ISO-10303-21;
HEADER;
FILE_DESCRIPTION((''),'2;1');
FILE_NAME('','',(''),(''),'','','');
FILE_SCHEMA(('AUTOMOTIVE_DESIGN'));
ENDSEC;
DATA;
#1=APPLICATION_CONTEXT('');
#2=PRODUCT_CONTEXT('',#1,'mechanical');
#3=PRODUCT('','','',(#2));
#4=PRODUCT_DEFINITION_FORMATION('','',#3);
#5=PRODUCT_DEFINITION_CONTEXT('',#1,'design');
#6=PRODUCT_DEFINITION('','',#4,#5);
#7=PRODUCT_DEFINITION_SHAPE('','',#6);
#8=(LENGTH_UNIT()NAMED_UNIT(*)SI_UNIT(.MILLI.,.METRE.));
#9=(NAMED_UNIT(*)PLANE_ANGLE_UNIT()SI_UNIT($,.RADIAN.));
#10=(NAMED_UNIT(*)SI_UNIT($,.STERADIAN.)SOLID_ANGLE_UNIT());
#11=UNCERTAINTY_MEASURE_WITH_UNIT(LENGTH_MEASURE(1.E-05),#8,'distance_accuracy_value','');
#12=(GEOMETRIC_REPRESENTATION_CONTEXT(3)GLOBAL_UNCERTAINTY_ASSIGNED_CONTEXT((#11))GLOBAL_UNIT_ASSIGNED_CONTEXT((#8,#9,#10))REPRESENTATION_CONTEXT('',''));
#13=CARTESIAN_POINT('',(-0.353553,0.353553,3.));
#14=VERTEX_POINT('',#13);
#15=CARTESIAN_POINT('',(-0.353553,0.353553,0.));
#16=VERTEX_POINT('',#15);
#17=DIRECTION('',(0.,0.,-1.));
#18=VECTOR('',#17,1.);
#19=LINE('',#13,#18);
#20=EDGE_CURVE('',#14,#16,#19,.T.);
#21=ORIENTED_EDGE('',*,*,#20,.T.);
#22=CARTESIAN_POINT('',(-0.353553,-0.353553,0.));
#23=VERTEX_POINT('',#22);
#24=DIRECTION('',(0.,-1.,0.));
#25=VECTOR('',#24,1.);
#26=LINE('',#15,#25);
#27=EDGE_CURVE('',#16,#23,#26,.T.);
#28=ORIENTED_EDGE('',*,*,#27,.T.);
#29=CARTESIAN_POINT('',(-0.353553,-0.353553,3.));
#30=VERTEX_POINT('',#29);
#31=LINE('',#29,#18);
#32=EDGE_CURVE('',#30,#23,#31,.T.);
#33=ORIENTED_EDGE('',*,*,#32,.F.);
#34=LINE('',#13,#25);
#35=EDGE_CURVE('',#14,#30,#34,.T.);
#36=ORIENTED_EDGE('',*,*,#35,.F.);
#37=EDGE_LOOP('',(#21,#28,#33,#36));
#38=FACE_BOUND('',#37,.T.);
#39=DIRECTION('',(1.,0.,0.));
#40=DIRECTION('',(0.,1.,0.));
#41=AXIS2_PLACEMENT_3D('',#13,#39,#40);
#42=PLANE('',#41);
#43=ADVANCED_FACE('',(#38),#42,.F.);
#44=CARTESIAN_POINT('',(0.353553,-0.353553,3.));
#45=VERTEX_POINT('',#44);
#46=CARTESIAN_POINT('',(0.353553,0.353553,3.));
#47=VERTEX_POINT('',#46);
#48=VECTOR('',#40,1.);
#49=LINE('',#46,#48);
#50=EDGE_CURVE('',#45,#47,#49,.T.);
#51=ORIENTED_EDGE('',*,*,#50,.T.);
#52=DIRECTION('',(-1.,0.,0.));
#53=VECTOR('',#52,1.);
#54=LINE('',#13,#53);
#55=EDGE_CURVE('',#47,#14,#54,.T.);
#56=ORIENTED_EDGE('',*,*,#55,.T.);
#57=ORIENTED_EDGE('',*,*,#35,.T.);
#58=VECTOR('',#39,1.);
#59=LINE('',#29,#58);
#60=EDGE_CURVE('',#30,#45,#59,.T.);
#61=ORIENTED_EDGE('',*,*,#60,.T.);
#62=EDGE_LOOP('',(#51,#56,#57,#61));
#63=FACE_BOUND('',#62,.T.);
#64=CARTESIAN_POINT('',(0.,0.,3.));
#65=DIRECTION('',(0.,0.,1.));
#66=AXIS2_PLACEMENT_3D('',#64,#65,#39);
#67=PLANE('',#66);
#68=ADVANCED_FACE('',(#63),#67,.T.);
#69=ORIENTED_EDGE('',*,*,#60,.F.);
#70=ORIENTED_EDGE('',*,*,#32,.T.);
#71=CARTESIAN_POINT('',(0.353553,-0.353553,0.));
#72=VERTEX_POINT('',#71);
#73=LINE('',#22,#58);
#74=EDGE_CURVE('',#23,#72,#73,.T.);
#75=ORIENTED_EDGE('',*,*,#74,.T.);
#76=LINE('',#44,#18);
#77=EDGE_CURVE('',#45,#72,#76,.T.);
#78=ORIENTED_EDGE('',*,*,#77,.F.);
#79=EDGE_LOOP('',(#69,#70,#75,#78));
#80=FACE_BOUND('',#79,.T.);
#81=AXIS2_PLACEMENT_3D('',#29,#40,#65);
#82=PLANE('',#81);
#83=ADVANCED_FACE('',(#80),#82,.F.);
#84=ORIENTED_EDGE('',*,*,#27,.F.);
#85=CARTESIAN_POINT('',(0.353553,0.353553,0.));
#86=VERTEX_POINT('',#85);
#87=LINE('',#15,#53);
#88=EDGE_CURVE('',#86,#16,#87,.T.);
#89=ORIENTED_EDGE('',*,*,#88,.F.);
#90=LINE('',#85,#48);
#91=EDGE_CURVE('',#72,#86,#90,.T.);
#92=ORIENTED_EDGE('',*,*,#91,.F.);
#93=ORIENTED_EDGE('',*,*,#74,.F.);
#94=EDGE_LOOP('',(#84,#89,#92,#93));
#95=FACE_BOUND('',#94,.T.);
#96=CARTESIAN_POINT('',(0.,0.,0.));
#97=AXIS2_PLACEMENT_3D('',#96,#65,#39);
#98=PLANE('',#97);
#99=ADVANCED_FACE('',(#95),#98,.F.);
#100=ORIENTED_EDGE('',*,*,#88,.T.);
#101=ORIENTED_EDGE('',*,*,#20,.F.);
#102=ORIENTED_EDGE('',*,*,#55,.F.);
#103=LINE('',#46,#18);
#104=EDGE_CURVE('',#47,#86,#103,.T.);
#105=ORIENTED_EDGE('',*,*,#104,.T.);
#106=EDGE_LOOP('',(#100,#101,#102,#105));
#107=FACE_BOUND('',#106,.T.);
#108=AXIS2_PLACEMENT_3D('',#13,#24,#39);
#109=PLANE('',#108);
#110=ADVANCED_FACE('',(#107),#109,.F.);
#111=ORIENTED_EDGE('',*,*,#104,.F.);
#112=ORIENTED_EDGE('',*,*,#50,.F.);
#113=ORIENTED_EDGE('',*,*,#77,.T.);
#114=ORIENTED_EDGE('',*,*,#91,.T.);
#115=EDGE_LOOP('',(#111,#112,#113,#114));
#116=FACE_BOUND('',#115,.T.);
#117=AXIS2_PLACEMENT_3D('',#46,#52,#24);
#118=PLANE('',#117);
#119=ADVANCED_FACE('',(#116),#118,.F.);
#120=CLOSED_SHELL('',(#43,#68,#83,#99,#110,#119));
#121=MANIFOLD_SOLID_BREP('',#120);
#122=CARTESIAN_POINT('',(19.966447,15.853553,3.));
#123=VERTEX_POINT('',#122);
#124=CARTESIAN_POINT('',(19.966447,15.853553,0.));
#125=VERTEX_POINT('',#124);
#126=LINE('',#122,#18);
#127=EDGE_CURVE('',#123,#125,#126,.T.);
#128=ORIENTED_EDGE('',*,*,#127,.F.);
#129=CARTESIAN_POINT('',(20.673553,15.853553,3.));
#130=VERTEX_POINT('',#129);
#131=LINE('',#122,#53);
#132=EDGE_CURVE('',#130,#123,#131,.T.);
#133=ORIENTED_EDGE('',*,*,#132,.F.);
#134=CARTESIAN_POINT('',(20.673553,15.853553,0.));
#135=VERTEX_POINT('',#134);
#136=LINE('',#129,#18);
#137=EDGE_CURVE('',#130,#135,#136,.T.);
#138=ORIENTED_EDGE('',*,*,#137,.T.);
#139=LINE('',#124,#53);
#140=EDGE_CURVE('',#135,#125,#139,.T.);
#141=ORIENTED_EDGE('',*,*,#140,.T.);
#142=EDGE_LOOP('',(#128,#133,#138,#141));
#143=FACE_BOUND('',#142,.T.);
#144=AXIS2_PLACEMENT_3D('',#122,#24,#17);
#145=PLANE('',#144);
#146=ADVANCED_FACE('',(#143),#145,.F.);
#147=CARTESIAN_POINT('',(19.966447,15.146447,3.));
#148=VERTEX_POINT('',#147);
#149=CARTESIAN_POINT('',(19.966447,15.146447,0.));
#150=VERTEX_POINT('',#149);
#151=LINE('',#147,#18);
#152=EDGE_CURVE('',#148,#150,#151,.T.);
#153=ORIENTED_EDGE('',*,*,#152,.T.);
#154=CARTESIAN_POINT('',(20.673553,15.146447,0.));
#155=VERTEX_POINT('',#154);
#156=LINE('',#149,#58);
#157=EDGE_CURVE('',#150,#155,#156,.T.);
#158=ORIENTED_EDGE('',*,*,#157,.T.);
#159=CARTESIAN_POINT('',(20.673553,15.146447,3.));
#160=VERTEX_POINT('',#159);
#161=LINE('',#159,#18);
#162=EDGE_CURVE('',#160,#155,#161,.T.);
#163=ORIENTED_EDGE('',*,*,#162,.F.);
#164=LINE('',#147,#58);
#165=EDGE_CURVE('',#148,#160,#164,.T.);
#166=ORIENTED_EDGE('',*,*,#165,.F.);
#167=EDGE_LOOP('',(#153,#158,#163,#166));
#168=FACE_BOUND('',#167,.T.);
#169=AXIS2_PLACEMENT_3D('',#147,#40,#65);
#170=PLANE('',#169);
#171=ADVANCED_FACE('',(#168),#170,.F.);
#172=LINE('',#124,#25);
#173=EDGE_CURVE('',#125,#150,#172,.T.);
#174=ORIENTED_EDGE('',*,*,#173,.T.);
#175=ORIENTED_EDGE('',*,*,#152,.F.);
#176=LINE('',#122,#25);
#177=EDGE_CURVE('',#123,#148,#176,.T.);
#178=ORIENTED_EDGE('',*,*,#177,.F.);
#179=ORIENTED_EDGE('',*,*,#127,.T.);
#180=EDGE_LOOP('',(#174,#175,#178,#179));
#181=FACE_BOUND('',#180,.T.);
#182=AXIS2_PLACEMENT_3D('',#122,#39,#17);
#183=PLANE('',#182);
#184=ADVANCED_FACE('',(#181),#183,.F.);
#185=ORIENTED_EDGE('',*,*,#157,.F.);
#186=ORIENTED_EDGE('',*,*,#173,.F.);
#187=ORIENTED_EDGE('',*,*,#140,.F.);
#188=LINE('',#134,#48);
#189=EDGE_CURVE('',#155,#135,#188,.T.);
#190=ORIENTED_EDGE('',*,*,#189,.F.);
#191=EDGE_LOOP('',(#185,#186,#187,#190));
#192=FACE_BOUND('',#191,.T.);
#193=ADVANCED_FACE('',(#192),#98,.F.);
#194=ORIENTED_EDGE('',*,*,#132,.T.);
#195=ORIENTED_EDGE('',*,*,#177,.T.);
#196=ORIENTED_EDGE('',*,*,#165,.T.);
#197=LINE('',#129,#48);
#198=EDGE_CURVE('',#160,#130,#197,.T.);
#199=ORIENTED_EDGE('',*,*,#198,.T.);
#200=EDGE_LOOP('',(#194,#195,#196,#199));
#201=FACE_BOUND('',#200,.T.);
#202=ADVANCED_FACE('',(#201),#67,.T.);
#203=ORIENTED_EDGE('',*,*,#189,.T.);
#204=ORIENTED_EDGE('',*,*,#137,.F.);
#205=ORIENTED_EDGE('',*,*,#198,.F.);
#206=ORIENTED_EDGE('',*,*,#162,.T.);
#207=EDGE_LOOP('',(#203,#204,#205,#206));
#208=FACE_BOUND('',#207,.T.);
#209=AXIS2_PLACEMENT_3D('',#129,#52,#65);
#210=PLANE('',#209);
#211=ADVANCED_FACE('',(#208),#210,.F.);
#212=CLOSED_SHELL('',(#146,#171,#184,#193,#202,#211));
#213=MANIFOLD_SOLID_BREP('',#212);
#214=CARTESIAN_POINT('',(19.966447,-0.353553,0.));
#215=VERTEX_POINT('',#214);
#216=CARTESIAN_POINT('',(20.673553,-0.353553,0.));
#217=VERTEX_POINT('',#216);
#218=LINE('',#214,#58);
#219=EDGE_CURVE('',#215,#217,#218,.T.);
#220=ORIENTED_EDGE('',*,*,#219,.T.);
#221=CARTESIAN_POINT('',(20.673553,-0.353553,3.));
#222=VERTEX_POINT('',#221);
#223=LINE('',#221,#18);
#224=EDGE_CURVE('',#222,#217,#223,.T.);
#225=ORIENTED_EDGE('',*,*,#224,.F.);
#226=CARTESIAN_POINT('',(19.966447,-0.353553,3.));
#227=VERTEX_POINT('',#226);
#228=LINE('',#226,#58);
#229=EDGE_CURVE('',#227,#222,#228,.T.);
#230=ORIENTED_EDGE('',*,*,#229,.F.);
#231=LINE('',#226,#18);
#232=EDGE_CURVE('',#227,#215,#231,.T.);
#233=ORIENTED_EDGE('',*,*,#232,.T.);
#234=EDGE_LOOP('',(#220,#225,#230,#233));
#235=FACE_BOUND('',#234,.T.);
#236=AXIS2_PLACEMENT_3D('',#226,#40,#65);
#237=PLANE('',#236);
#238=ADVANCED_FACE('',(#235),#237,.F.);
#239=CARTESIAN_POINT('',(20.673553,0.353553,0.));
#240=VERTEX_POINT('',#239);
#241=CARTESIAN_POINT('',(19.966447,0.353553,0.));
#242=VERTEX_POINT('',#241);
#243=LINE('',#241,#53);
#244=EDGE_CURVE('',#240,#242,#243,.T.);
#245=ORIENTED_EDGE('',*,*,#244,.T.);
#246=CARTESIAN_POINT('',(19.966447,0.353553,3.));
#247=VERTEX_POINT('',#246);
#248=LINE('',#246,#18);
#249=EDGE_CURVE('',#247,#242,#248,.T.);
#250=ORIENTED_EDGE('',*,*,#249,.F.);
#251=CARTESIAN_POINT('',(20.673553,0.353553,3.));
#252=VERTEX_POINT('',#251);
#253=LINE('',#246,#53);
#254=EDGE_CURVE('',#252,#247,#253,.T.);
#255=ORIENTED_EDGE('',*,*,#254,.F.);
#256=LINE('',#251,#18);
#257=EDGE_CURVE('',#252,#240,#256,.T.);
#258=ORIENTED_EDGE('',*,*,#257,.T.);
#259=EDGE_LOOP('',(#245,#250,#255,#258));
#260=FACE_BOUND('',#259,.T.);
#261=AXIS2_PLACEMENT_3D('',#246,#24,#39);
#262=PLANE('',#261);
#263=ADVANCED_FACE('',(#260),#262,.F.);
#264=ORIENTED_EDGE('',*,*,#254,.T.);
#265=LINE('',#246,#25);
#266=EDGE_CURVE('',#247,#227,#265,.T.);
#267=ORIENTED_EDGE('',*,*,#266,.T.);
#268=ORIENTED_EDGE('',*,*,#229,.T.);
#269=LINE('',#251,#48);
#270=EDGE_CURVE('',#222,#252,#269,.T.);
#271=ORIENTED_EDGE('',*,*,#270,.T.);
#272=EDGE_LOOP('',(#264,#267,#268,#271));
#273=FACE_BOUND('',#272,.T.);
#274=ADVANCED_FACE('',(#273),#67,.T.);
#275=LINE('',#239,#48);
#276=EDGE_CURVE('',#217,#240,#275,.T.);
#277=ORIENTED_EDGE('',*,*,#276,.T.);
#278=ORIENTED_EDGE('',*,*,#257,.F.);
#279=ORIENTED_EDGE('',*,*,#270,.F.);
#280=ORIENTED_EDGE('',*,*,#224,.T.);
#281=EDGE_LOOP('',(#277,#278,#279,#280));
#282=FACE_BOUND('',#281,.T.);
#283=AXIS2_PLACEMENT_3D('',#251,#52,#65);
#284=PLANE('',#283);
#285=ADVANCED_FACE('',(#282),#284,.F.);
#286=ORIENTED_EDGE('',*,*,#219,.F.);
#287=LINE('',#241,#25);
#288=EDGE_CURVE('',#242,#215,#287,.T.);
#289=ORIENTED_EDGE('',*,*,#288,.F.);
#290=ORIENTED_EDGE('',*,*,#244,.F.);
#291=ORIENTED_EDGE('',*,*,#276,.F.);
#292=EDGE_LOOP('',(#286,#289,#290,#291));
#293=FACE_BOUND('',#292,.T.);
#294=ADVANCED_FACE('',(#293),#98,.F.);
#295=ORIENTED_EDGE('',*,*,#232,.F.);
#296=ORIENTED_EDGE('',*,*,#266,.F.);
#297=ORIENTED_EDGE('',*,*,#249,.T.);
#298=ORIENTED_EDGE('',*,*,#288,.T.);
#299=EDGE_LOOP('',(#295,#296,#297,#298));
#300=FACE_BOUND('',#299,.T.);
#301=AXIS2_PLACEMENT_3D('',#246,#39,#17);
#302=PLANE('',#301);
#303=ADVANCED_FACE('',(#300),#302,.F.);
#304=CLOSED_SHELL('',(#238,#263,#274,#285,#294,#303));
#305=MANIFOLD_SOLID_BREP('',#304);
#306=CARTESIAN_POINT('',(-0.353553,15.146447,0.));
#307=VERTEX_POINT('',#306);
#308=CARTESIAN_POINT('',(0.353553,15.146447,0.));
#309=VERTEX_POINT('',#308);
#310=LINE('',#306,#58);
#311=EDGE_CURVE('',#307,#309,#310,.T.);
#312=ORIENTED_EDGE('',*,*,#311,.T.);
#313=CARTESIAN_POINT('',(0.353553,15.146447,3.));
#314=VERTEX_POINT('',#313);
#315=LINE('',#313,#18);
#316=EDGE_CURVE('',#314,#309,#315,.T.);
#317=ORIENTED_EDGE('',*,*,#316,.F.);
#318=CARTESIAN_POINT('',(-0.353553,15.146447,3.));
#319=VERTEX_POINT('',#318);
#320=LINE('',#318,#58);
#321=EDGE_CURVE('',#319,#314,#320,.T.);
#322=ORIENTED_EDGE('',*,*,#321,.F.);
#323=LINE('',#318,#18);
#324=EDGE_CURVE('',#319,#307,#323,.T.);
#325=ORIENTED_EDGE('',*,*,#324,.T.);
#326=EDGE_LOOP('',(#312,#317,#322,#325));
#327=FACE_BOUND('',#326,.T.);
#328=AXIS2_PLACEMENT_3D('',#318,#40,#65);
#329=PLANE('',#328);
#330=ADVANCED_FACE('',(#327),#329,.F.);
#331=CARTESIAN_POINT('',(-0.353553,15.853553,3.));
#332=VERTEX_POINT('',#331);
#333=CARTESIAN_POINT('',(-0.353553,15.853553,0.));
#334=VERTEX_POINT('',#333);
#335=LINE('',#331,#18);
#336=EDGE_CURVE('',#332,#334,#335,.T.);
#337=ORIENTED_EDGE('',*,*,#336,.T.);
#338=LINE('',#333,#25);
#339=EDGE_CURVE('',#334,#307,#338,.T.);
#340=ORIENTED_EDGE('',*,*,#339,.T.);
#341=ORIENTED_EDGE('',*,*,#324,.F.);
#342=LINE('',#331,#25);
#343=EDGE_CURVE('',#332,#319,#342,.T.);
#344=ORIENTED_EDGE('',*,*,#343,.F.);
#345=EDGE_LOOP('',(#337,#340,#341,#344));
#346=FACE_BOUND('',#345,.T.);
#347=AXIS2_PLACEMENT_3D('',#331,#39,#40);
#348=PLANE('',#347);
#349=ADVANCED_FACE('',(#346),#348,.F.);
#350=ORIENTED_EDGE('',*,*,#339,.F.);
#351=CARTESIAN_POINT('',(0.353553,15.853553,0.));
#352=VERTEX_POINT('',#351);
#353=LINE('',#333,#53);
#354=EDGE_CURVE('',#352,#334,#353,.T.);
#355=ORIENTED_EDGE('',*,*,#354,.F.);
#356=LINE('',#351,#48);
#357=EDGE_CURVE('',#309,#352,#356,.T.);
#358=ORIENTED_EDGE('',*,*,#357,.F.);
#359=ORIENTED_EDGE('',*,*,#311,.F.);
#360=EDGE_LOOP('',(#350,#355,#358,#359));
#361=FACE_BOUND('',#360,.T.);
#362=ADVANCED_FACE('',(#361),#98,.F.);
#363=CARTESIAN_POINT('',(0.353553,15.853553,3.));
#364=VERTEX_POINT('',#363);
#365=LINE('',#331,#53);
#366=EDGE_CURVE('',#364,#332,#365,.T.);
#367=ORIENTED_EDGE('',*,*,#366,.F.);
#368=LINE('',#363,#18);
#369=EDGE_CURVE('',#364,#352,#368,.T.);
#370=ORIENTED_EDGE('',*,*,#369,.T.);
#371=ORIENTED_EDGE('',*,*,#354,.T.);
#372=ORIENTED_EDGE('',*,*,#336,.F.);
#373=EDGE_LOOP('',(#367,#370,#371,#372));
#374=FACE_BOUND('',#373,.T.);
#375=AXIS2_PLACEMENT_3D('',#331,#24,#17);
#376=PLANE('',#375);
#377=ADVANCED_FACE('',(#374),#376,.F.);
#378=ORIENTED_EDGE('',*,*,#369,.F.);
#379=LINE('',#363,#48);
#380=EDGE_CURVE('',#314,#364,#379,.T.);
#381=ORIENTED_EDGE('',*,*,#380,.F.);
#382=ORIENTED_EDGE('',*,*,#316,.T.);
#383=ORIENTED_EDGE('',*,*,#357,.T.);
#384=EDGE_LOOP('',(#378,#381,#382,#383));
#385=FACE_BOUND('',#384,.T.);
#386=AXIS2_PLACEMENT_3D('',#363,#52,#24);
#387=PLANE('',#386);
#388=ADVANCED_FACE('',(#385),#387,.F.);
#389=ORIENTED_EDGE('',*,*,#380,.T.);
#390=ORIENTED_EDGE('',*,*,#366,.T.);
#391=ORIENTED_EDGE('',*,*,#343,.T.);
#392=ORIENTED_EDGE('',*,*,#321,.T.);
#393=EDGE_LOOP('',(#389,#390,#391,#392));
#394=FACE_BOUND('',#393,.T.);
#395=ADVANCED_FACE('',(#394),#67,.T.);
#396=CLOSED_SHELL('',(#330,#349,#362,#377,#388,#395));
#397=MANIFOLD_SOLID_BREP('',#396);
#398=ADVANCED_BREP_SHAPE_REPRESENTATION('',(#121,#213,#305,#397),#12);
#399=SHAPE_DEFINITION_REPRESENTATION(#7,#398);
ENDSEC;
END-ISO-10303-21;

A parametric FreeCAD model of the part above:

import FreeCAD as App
import Part
import Sketcher

V = App.Vector
Q = App.Units.Quantity

doc = App.newDocument("Part")
body = doc.addObject("PartDesign::Body", "Body")

sketch1 = body.newObject("Sketcher::SketchObject", "Sketch")
sketch1.AttachmentSupport = (doc.getObject("XY_Plane"), [""])
sketch1.MapMode = "FlatFace"
sketch1.addGeometry([
    Part.LineSegment(V(20, 0.4, 0), V(20, -0.4, 0)),
    Part.LineSegment(V(20, -0.4, 0), V(20.7, -0.4, 0)),
    Part.LineSegment(V(20.7, -0.4, 0), V(20.7, 0.4, 0)),
    Part.LineSegment(V(20.7, 0.4, 0), V(20, 0.4, 0)),
], False)
sketch1.addConstraint([
    Sketcher.Constraint("Coincident", 0, 2, 1, 1),
    Sketcher.Constraint("Coincident", 1, 2, 2, 1),
    Sketcher.Constraint("Coincident", 2, 2, 3, 1),
    Sketcher.Constraint("Coincident", 3, 2, 0, 1),
    Sketcher.Constraint("Vertical", 0),
    Sketcher.Constraint("Horizontal", 1),
    Sketcher.Constraint("Vertical", 2),
    Sketcher.Constraint("Horizontal", 3),
    Sketcher.Constraint("Equal", 3, 0),
    Sketcher.Constraint("DistanceX", 1, 1, 1, 2, Q("0.707107 mm")),
    Sketcher.Constraint("DistanceX", -1, 1, 0, 2, Q("19.966447 mm")),
    Sketcher.Constraint("DistanceY", 0, 2, -1, 1, Q("0.353553 mm")),
])
pad1 = body.newObject("PartDesign::Pad", "Pad")
pad1.Profile = sketch1
pad1.Length = 3
body2 = doc.addObject("PartDesign::Body", "Body001")

sketch2 = body2.newObject("Sketcher::SketchObject", "Sketch001")
sketch2.AttachmentSupport = (doc.getObject("XY_Plane001"), [""])
sketch2.MapMode = "FlatFace"
sketch2.addGeometry([
    Part.LineSegment(V(-0.4, 0.4, 0), V(-0.4, -0.4, 0)),
    Part.LineSegment(V(-0.4, -0.4, 0), V(0.4, -0.4, 0)),
    Part.LineSegment(V(0.4, -0.4, 0), V(0.4, 0.4, 0)),
    Part.LineSegment(V(0.4, 0.4, 0), V(-0.4, 0.4, 0)),
], False)
sketch2.addConstraint([
    Sketcher.Constraint("Coincident", 0, 2, 1, 1),
    Sketcher.Constraint("Coincident", 1, 2, 2, 1),
    Sketcher.Constraint("Coincident", 2, 2, 3, 1),
    Sketcher.Constraint("Coincident", 3, 2, 0, 1),
    Sketcher.Constraint("Vertical", 0),
    Sketcher.Constraint("Horizontal", 1),
    Sketcher.Constraint("Vertical", 2),
    Sketcher.Constraint("Horizontal", 3),
    Sketcher.Constraint("Symmetric", 0, 2, 2, 2, -1, 1),
    Sketcher.Constraint("Equal", 3, 0),
    Sketcher.Constraint("DistanceX", 1, 1, 1, 2, Q("0.707107 mm")),
])
pad2 = body2.newObject("PartDesign::Pad", "Pad001")
pad2.Profile = sketch2
pad2.Length = 3
body3 = doc.addObject("PartDesign::Body", "Body002")

sketch3 = body3.newObject("Sketcher::SketchObject", "Sketch002")
sketch3.AttachmentSupport = (doc.getObject("XY_Plane002"), [""])
sketch3.MapMode = "FlatFace"
sketch3.addGeometry([
    Part.LineSegment(V(20, 15.9, 0), V(20, 15.1, 0)),
    Part.LineSegment(V(20, 15.1, 0), V(20.7, 15.1, 0)),
    Part.LineSegment(V(20.7, 15.1, 0), V(20.7, 15.9, 0)),
    Part.LineSegment(V(20.7, 15.9, 0), V(20, 15.9, 0)),
], False)
sketch3.addConstraint([
    Sketcher.Constraint("Coincident", 0, 2, 1, 1),
    Sketcher.Constraint("Coincident", 1, 2, 2, 1),
    Sketcher.Constraint("Coincident", 2, 2, 3, 1),
    Sketcher.Constraint("Coincident", 3, 2, 0, 1),
    Sketcher.Constraint("Vertical", 0),
    Sketcher.Constraint("Horizontal", 1),
    Sketcher.Constraint("Vertical", 2),
    Sketcher.Constraint("Horizontal", 3),
    Sketcher.Constraint("Equal", 3, 0),
    Sketcher.Constraint("DistanceX", 1, 1, 1, 2, Q("0.707107 mm")),
    Sketcher.Constraint("DistanceX", -1, 1, 0, 2, Q("19.966447 mm")),
    Sketcher.Constraint("DistanceY", -1, 1, 0, 2, Q("15.146447 mm")),
])
pad3 = body3.newObject("PartDesign::Pad", "Pad002")
pad3.Profile = sketch3
pad3.Length = 3
body4 = doc.addObject("PartDesign::Body", "Body003")

sketch4 = body4.newObject("Sketcher::SketchObject", "Sketch003")
sketch4.AttachmentSupport = (doc.getObject("XY_Plane003"), [""])
sketch4.MapMode = "FlatFace"
sketch4.addGeometry([
    Part.LineSegment(V(-0.4, 15.9, 0), V(-0.4, 15.1, 0)),
    Part.LineSegment(V(-0.4, 15.1, 0), V(0.4, 15.1, 0)),
    Part.LineSegment(V(0.4, 15.1, 0), V(0.4, 15.9, 0)),
    Part.LineSegment(V(0.4, 15.9, 0), V(-0.4, 15.9, 0)),
], False)
sketch4.addConstraint([
    Sketcher.Constraint("Coincident", 0, 2, 1, 1),
    Sketcher.Constraint("Coincident", 1, 2, 2, 1),
    Sketcher.Constraint("Coincident", 2, 2, 3, 1),
    Sketcher.Constraint("Coincident", 3, 2, 0, 1),
    Sketcher.Constraint("Vertical", 0),
    Sketcher.Constraint("Horizontal", 1),
    Sketcher.Constraint("Vertical", 2),
    Sketcher.Constraint("Horizontal", 3),
    Sketcher.Constraint("Equal", 3, 0),
    Sketcher.Constraint("DistanceX", 1, 1, 1, 2, Q("0.707107 mm")),
    Sketcher.Constraint("DistanceX", 0, 2, -1, 1, Q("0.353553 mm")),
    Sketcher.Constraint("DistanceY", -1, 1, 0, 2, Q("15.146447 mm")),
])
pad4 = body4.newObject("PartDesign::Pad", "Pad003")
pad4.Profile = sketch4
pad4.Length = 3

doc.recompute()
